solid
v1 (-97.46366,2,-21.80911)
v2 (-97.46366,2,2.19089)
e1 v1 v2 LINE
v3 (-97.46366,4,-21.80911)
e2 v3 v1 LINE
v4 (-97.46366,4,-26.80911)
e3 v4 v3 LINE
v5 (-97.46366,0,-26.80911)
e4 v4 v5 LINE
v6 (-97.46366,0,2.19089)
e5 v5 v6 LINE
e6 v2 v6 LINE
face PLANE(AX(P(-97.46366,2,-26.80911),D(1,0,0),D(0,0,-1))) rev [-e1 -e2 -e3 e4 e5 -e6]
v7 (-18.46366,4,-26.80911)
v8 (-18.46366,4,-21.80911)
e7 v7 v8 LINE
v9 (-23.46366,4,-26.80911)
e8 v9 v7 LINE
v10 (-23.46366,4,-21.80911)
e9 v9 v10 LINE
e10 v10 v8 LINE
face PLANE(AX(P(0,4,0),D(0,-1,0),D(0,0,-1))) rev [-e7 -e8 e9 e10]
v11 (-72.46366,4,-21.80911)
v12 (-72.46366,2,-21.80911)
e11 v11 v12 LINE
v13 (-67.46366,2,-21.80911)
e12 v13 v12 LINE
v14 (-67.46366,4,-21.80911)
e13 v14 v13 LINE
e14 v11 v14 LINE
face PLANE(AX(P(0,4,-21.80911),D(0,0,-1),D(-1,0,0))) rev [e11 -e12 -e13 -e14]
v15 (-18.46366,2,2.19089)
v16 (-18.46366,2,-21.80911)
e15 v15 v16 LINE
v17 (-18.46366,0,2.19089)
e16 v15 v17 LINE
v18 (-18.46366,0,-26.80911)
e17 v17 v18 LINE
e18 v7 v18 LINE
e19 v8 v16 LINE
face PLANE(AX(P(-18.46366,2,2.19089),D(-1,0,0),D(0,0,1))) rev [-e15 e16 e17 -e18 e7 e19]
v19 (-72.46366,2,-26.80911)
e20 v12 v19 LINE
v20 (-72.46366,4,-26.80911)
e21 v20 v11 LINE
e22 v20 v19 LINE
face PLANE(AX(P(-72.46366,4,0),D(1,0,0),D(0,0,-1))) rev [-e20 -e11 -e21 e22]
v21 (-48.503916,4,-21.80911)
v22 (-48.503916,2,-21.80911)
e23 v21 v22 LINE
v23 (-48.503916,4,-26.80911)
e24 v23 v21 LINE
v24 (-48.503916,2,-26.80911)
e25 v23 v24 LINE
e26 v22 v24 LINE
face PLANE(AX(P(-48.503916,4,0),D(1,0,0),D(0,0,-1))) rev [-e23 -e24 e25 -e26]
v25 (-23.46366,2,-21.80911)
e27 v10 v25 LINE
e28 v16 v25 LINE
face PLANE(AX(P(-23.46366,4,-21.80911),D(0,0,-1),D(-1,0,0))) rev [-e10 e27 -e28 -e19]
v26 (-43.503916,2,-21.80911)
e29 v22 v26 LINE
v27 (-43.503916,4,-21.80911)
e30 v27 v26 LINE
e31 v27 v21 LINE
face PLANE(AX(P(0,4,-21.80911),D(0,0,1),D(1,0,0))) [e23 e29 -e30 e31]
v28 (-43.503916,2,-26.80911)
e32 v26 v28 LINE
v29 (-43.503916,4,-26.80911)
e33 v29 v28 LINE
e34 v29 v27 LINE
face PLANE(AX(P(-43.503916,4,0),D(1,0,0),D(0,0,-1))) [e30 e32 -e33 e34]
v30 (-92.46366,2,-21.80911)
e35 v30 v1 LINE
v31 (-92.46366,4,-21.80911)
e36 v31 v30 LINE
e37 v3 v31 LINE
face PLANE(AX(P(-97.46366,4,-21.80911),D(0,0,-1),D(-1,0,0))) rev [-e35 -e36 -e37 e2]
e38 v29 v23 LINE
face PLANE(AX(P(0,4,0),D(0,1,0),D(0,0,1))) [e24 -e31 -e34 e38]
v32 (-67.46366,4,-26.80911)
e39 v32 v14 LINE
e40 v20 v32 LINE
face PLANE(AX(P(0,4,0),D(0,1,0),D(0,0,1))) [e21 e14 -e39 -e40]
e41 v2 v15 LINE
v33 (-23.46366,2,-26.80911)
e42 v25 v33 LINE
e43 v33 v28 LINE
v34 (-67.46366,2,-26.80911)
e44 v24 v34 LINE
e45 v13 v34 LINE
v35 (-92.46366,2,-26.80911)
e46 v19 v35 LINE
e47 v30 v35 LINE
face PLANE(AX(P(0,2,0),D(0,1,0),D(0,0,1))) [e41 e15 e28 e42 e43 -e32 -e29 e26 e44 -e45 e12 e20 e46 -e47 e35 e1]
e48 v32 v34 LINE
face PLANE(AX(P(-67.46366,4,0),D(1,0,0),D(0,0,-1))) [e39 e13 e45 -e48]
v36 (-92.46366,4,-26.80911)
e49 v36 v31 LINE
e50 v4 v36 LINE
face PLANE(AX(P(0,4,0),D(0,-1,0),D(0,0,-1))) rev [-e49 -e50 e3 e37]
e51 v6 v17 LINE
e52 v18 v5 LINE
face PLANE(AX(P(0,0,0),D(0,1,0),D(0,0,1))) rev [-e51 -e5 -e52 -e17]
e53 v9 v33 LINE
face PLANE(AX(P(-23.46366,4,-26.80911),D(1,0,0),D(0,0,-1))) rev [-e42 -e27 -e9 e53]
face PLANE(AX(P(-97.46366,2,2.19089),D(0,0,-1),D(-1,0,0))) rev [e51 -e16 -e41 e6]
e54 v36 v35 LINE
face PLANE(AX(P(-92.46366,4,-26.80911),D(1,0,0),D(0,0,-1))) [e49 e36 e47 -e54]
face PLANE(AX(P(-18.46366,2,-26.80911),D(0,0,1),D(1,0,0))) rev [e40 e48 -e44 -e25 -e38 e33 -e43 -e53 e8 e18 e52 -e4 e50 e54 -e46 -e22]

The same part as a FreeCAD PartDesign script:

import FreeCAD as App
import Part
import Sketcher
Q = App.Units.Quantity

doc = App.newDocument("Part")
params = doc.addObject("Spreadsheet::Sheet", "Params")
for row, (alias, value) in enumerate([
    ("sketch1_width", "79 mm"),
    ("sketch1_height", "29 mm"),
    ("pad1_length", "2 mm"),
    ("sketch2_width", "5 mm"),
    ("pad2_length", "4 mm"),
    ("sketch3_width", "5 mm"),
    ("pad3_length", "4 mm"),
], start=1):
    params.set(f"A{row}", alias)
    params.set(f"B{row}", "=" + value)
    params.setAlias(f"B{row}", alias)

body = doc.addObject("PartDesign::Body", "Body")

sketch1 = doc.addObject("Sketcher::SketchObject", "Sketch")
body.addObject(sketch1)
sketch1.AttachmentSupport = (doc.XZ_Plane, [""])
sketch1.MapMode = "FlatFace"
sketch1.addGeometry(Part.LineSegment(App.Vector(-97, -27, 0), App.Vector(-97, 2, 0)), False)
sketch1.addGeometry(Part.LineSegment(App.Vector(-97, 2, 0), App.Vector(-18, 2, 0)), False)
sketch1.addGeometry(Part.LineSegment(App.Vector(-18, 2, 0), App.Vector(-18, -27, 0)), False)
sketch1.addGeometry(Part.LineSegment(App.Vector(-18, -27, 0), App.Vector(-97, -27, 0)), False)
sketch1.addConstraint(Sketcher.Constraint("Coincident", 0, 2, 1, 1))
sketch1.addConstraint(Sketcher.Constraint("Coincident", 1, 2, 2, 1))
sketch1.addConstraint(Sketcher.Constraint("Coincident", 2, 2, 3, 1))
sketch1.addConstraint(Sketcher.Constraint("Coincident", 3, 2, 0, 1))
sketch1.addConstraint(Sketcher.Constraint("Vertical", 0))
sketch1.addConstraint(Sketcher.Constraint("Horizontal", 1))
sketch1.addConstraint(Sketcher.Constraint("Vertical", 2))
sketch1.addConstraint(Sketcher.Constraint("Horizontal", 3))
sketch1.addConstraint(Sketcher.Constraint("DistanceX", 1, 1, 1, 2, Q("79 mm")))
sketch1.addConstraint(Sketcher.Constraint("DistanceY", 0, 1, 0, 2, Q("29 mm")))
sketch1.addConstraint(Sketcher.Constraint("DistanceX", 0, 2, -1, 1, Q("97.46366 mm")))
sketch1.addConstraint(Sketcher.Constraint("DistanceY", -1, 1, 0, 2, Q("2.19089 mm")))
sketch1.setExpression("Constraints[8]", "Params.sketch1_width")
sketch1.setExpression("Constraints[9]", "Params.sketch1_height")
pad1 = doc.addObject("PartDesign::Pad", "Pad")
body.addObject(pad1)
pad1.Profile = sketch1
pad1.setExpression("Length", "Params.pad1_length")
pad1.Reversed = True

sketch2 = doc.addObject("Sketcher::SketchObject", "Sketch001")
body.addObject(sketch2)
sketch2.AttachmentSupport = (doc.XZ_Plane, [""])
sketch2.MapMode = "FlatFace"
sketch2.addGeometry(Part.LineSegment(App.Vector(-97, -27, 0), App.Vector(-97, -22, 0)), False)
sketch2.addGeometry(Part.LineSegment(App.Vector(-97, -22, 0), App.Vector(-92, -22, 0)), False)
sketch2.addGeometry(Part.LineSegment(App.Vector(-92, -22, 0), App.Vector(-92, -27, 0)), False)
sketch2.addGeometry(Part.LineSegment(App.Vector(-92, -27, 0), App.Vector(-97, -27, 0)), False)
sketch2.addGeometry(Part.LineSegment(App.Vector(-23, -27, 0), App.Vector(-23, -22, 0)), False)
sketch2.addGeometry(Part.LineSegment(App.Vector(-23, -22, 0), App.Vector(-18, -22, 0)), False)
sketch2.addGeometry(Part.LineSegment(App.Vector(-18, -22, 0), App.Vector(-18, -27, 0)), False)
sketch2.addGeometry(Part.LineSegment(App.Vector(-18, -27, 0), App.Vector(-23, -27, 0)), False)
sketch2.addConstraint(Sketcher.Constraint("Coincident", 0, 2, 1, 1))
sketch2.addConstraint(Sketcher.Constraint("Coincident", 1, 2, 2, 1))
sketch2.addConstraint(Sketcher.Constraint("Coincident", 2, 2, 3, 1))
sketch2.addConstraint(Sketcher.Constraint("Coincident", 3, 2, 0, 1))
sketch2.addConstraint(Sketcher.Constraint("Coincident", 4, 2, 5, 1))
sketch2.addConstraint(Sketcher.Constraint("Coincident", 5, 2, 6, 1))
sketch2.addConstraint(Sketcher.Constraint("Coincident", 6, 2, 7, 1))
sketch2.addConstraint(Sketcher.Constraint("Coincident", 7, 2, 4, 1))
sketch2.addConstraint(Sketcher.Constraint("Vertical", 0))
sketch2.addConstraint(Sketcher.Constraint("Horizontal", 1))
sketch2.addConstraint(Sketcher.Constraint("Vertical", 2))
sketch2.addConstraint(Sketcher.Constraint("Horizontal", 3))
sketch2.addConstraint(Sketcher.Constraint("Vertical", 4))
sketch2.addConstraint(Sketcher.Constraint("Horizontal", 5))
sketch2.addConstraint(Sketcher.Constraint("Vertical", 6))
sketch2.addConstraint(Sketcher.Constraint("Horizontal", 7))
sketch2.addConstraint(Sketcher.Constraint("Horizontal", 1, 2, 4, 2))
sketch2.addConstraint(Sketcher.Constraint("Horizontal", 3, 2, 6, 2))
sketch2.addConstraint(Sketcher.Constraint("Equal", 3, 5))
sketch2.addConstraint(Sketcher.Constraint("Equal", 7, 0))
sketch2.addConstraint(Sketcher.Constraint("DistanceX", 1, 1, 1, 2, Q("5 mm")))
sketch2.addConstraint(Sketcher.Constraint("DistanceX", 1, 2, 4, 2, Q("69 mm")))
sketch2.addConstraint(Sketcher.Constraint("DistanceX", 0, 2, -1, 1, Q("97.46366 mm")))
sketch2.addConstraint(Sketcher.Constraint("DistanceY", 0, 2, -1, 1, Q("21.80911 mm")))
sketch2.setExpression("Constraints[20]", "Params.sketch2_width")
pad2 = doc.addObject("PartDesign::Pad", "Pad001")
body.addObject(pad2)
pad2.Profile = sketch2
pad2.setExpression("Length", "Params.pad2_length")
pad2.Reversed = True

sketch3 = doc.addObject("Sketcher::SketchObject", "Sketch002")
body.addObject(sketch3)
sketch3.AttachmentSupport = (doc.XZ_Plane, [""])
sketch3.MapMode = "FlatFace"
sketch3.addGeometry(Part.LineSegment(App.Vector(-72, -27, 0), App.Vector(-72, -22, 0)), False)
sketch3.addGeometry(Part.LineSegment(App.Vector(-72, -22, 0), App.Vector(-67, -22, 0)), False)
sketch3.addGeometry(Part.LineSegment(App.Vector(-67, -22, 0), App.Vector(-67, -27, 0)), False)
sketch3.addGeometry(Part.LineSegment(App.Vector(-67, -27, 0), App.Vector(-72, -27, 0)), False)
sketch3.addGeometry(Part.LineSegment(App.Vector(-49, -27, 0), App.Vector(-49, -22, 0)), False)
sketch3.addGeometry(Part.LineSegment(App.Vector(-49, -22, 0), App.Vector(-44, -22, 0)), False)
sketch3.addGeometry(Part.LineSegment(App.Vector(-44, -22, 0), App.Vector(-44, -27, 0)), False)
sketch3.addGeometry(Part.LineSegment(App.Vector(-44, -27, 0), App.Vector(-49, -27, 0)), False)
sketch3.addConstraint(Sketcher.Constraint("Coincident", 0, 2, 1, 1))
sketch3.addConstraint(Sketcher.Constraint("Coincident", 1, 2, 2, 1))
sketch3.addConstraint(Sketcher.Constraint("Coincident", 2, 2, 3, 1))
sketch3.addConstraint(Sketcher.Constraint("Coincident", 3, 2, 0, 1))
sketch3.addConstraint(Sketcher.Constraint("Coincident", 4, 2, 5, 1))
sketch3.addConstraint(Sketcher.Constraint("Coincident", 5, 2, 6, 1))
sketch3.addConstraint(Sketcher.Constraint("Coincident", 6, 2, 7, 1))
sketch3.addConstraint(Sketcher.Constraint("Coincident", 7, 2, 4, 1))
sketch3.addConstraint(Sketcher.Constraint("Vertical", 0))
sketch3.addConstraint(Sketcher.Constraint("Horizontal", 1))
sketch3.addConstraint(Sketcher.Constraint("Vertical", 2))
sketch3.addConstraint(Sketcher.Constraint("Horizontal", 3))
sketch3.addConstraint(Sketcher.Constraint("Vertical", 4))
sketch3.addConstraint(Sketcher.Constraint("Horizontal", 5))
sketch3.addConstraint(Sketcher.Constraint("Vertical", 6))
sketch3.addConstraint(Sketcher.Constraint("Horizontal", 7))
sketch3.addConstraint(Sketcher.Constraint("Horizontal", 1, 2, 4, 2))
sketch3.addConstraint(Sketcher.Constraint("Horizontal", 3, 2, 6, 2))
sketch3.addConstraint(Sketcher.Constraint("Equal", 3, 5))
sketch3.addConstraint(Sketcher.Constraint("Equal", 7, 0))
sketch3.addConstraint(Sketcher.Constraint("DistanceX", 1, 1, 1, 2, Q("5 mm")))
sketch3.addConstraint(Sketcher.Constraint("DistanceX", 0, 2, -1, 1, Q("72.46366 mm")))
sketch3.addConstraint(Sketcher.Constraint("DistanceY", 0, 2, -1, 1, Q("21.80911 mm")))
sketch3.addConstraint(Sketcher.Constraint("DistanceX", 4, 2, -1, 1, Q("48.503916 mm")))
sketch3.setExpression("Constraints[20]", "Params.sketch3_width")
pad3 = doc.addObject("PartDesign::Pad", "Pad002")
body.addObject(pad3)
pad3.Profile = sketch3
pad3.setExpression("Length", "Params.pad3_length")
pad3.Reversed = True

doc.recompute()
